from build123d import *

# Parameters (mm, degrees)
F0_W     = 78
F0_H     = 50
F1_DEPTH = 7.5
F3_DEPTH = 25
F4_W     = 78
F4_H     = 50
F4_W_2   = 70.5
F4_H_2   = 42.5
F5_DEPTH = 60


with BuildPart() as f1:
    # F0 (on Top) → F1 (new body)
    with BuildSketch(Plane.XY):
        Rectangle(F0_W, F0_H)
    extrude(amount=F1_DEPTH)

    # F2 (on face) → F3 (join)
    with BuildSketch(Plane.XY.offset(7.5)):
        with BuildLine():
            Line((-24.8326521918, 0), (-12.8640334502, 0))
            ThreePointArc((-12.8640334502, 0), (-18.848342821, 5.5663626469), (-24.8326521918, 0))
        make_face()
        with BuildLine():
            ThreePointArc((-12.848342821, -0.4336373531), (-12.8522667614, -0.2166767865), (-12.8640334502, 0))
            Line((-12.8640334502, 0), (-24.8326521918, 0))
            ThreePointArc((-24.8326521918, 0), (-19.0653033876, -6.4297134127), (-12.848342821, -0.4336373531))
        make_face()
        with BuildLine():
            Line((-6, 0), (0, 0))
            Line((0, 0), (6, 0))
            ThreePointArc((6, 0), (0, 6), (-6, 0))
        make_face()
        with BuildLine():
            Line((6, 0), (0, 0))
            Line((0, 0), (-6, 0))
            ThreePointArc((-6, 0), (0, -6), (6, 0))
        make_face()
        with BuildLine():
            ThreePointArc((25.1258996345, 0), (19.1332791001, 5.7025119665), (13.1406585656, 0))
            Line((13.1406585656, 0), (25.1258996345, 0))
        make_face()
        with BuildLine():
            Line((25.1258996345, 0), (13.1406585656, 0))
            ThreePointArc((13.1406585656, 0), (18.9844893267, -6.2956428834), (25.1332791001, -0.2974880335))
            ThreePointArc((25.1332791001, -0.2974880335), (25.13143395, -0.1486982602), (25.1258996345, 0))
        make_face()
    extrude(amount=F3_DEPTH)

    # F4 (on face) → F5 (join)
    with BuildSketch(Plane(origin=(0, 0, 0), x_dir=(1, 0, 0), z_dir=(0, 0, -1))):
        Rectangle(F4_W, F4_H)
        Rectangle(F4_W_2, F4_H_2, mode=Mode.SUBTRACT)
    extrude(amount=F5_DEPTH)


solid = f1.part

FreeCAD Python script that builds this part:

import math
import FreeCAD as App
import Part
import Sketcher
from FreeCAD import Vector

doc = App.newDocument("Part")
body = doc.addObject("PartDesign::Body", "Body")

# Sketch on XY plane
sketch1 = body.newObject("Sketcher::SketchObject", "Sketch")
sketch1.AttachmentSupport = (doc.getObject("XY_Plane"), [""])
sketch1.MapMode = "FlatFace"
sketch1.addGeometry(Part.LineSegment(Vector(-39, 25, 0), Vector(-39, -25, 0)), False)
sketch1.addGeometry(Part.LineSegment(Vector(-39, -25, 0), Vector(39, -25, 0)), False)
sketch1.addGeometry(Part.LineSegment(Vector(39, -25, 0), Vector(39, 25, 0)), False)
sketch1.addGeometry(Part.LineSegment(Vector(39, 25, 0), Vector(-39, 25, 0)), False)
sketch1.addConstraint(Sketcher.Constraint("Coincident", 0, 2, 1, 1))
sketch1.addConstraint(Sketcher.Constraint("Coincident", 1, 2, 2, 1))
sketch1.addConstraint(Sketcher.Constraint("Coincident", 2, 2, 3, 1))
sketch1.addConstraint(Sketcher.Constraint("Coincident", 3, 2, 0, 1))
sketch1.addConstraint(Sketcher.Constraint("Vertical", 0))
sketch1.addConstraint(Sketcher.Constraint("Horizontal", 1))
sketch1.addConstraint(Sketcher.Constraint("Vertical", 2))
sketch1.addConstraint(Sketcher.Constraint("Horizontal", 3))
sketch1.addConstraint(Sketcher.Constraint("Symmetric", 0, 2, 2, 2, -1, 1))
sketch1.addConstraint(Sketcher.Constraint("DistanceX", 1, 1, 1, 2, 78.0))
sketch1.addConstraint(Sketcher.Constraint("DistanceY", 0, 2, 0, 1, 50.0))
pad1 = body.newObject("PartDesign::Pad", "Pad")
pad1.Profile = sketch1
pad1.Length = 7.5

# Sketch on XY plane
sketch2 = body.newObject("Sketcher::SketchObject", "Sketch001")
sketch2.AttachmentSupport = (doc.getObject("XY_Plane"), [""])
sketch2.MapMode = "FlatFace"
sketch2.AttachmentOffset = App.Placement(Vector(0, 0, 7.5), App.Rotation())
sketch2.addGeometry(Part.ArcOfCircle(Part.Circle(Vector(-18.848343, -0.433637, 0), Vector(0, 0, 1), 6), math.radians(4.144545), math.radians(175.855455)), False)
sketch2.addGeometry(Part.ArcOfCircle(Part.Circle(Vector(-18.848343, -0.433637, 0), Vector(0, 0, 1), 6), math.radians(175.855455), math.radians(360)), False)
sketch2.addGeometry(Part.ArcOfCircle(Part.Circle(Vector(-18.848343, -0.433637, 0), Vector(0, 0, 1), 6), math.radians(0), math.radians(4.144545)), False)
sketch2.addGeometry(Part.Circle(Vector(0, 0, 0), Vector(0, 0, 1), 6), False)
sketch2.addGeometry(Part.ArcOfCircle(Part.Circle(Vector(19.133279, -0.297488, 0), Vector(0, 0, 1), 6), math.radians(2.841967), math.radians(177.158033)), False)
sketch2.addGeometry(Part.ArcOfCircle(Part.Circle(Vector(19.133279, -0.297488, 0), Vector(0, 0, 1), 6), math.radians(177.158033), math.radians(360)), False)
sketch2.addGeometry(Part.ArcOfCircle(Part.Circle(Vector(19.133279, -0.297488, 0), Vector(0, 0, 1), 6), math.radians(0), math.radians(2.841967)), False)
sketch2.addConstraint(Sketcher.Constraint("Tangent", 0, 2, 1, 1))
sketch2.addConstraint(Sketcher.Constraint("Tangent", 1, 2, 2, 1))
sketch2.addConstraint(Sketcher.Constraint("Tangent", 2, 2, 0, 1))
sketch2.addConstraint(Sketcher.Constraint("Tangent", 4, 2, 5, 1))
sketch2.addConstraint(Sketcher.Constraint("Tangent", 5, 2, 6, 1))
sketch2.addConstraint(Sketcher.Constraint("Tangent", 6, 2, 4, 1))
sketch2.addConstraint(Sketcher.Constraint("Coincident", 3, 3, -1, 1))
sketch2.addConstraint(Sketcher.Constraint("Equal", 2, 3))
sketch2.addConstraint(Sketcher.Constraint("Equal", 3, 4))
sketch2.addConstraint(Sketcher.Constraint("PointOnObject", 0, 2, -1))
sketch2.addConstraint(Sketcher.Constraint("PointOnObject", 2, 2, -1))
sketch2.addConstraint(Sketcher.Constraint("PointOnObject", 4, 2, -1))
sketch2.addConstraint(Sketcher.Constraint("PointOnObject", 6, 2, -1))
sketch2.addConstraint(Sketcher.Constraint("Horizontal", 2, 3, 1, 2))
sketch2.addConstraint(Sketcher.Constraint("Horizontal", 6, 3, 5, 2))
sketch2.addConstraint(Sketcher.Constraint("Diameter", 3, 12.0))
sketch2.addConstraint(Sketcher.Constraint("DistanceX", 1, 2, 4, 2, 25.989001))
sketch2.addConstraint(Sketcher.Constraint("DistanceX", -1, 1, 6, 2, 25.1259))
sketch2.addConstraint(Sketcher.Constraint("DistanceX", -1, 1, 4, 3, 19.133279))
sketch2.addConstraint(Sketcher.Constraint("DistanceY", 2, 3, 4, 3, 0.136149))
pad2 = body.newObject("PartDesign::Pad", "Pad001")
pad2.Profile = sketch2
pad2.Length = 25

# Sketch on XY plane
sketch3 = body.newObject("Sketcher::SketchObject", "Sketch002")
sketch3.AttachmentSupport = (doc.getObject("XY_Plane"), [""])
sketch3.MapMode = "FlatFace"
sketch3.addGeometry(Part.LineSegment(Vector(-39, -25, 0), Vector(-39, 25, 0)), False)
sketch3.addGeometry(Part.LineSegment(Vector(-39, 25, 0), Vector(39, 25, 0)), False)
sketch3.addGeometry(Part.LineSegment(Vector(39, 25, 0), Vector(39, -25, 0)), False)
sketch3.addGeometry(Part.LineSegment(Vector(39, -25, 0), Vector(-39, -25, 0)), False)
sketch3.addGeometry(Part.LineSegment(Vector(35.25, 21.25, 0), Vector(-35.25, 21.25, 0)), False)
sketch3.addGeometry(Part.LineSegment(Vector(-35.25, 21.25, 0), Vector(-35.25, -21.25, 0)), False)
sketch3.addGeometry(Part.LineSegment(Vector(-35.25, -21.25, 0), Vector(35.25, -21.25, 0)), False)
sketch3.addGeometry(Part.LineSegment(Vector(35.25, -21.25, 0), Vector(35.25, 21.25, 0)), False)
sketch3.addConstraint(Sketcher.Constraint("Coincident", 0, 2, 1, 1))
sketch3.addConstraint(Sketcher.Constraint("Coincident", 1, 2, 2, 1))
sketch3.addConstraint(Sketcher.Constraint("Coincident", 2, 2, 3, 1))
sketch3.addConstraint(Sketcher.Constraint("Coincident", 3, 2, 0, 1))
sketch3.addConstraint(Sketcher.Constraint("Coincident", 4, 2, 5, 1))
sketch3.addConstraint(Sketcher.Constraint("Coincident", 5, 2, 6, 1))
sketch3.addConstraint(Sketcher.Constraint("Coincident", 6, 2, 7, 1))
sketch3.addConstraint(Sketcher.Constraint("Coincident", 7, 2, 4, 1))
sketch3.addConstraint(Sketcher.Constraint("Vertical", 0))
sketch3.addConstraint(Sketcher.Constraint("Horizontal", 1))
sketch3.addConstraint(Sketcher.Constraint("Vertical", 2))
sketch3.addConstraint(Sketcher.Constraint("Horizontal", 3))
sketch3.addConstraint(Sketcher.Constraint("Horizontal", 4))
sketch3.addConstraint(Sketcher.Constraint("Vertical", 5))
sketch3.addConstraint(Sketcher.Constraint("Horizontal", 6))
sketch3.addConstraint(Sketcher.Constraint("Vertical", 7))
sketch3.addConstraint(Sketcher.Constraint("Symmetric", 0, 2, 2, 2, -1, 1))
sketch3.addConstraint(Sketcher.Constraint("Symmetric", 4, 2, 6, 2, -1, 1))
sketch3.addConstraint(Sketcher.Constraint("DistanceX", 1, 1, 1, 2, 78.0))
sketch3.addConstraint(Sketcher.Constraint("DistanceY", 0, 1, 0, 2, 50.0))
sketch3.addConstraint(Sketcher.Constraint("DistanceX", 4, 2, 4, 1, 70.5))
sketch3.addConstraint(Sketcher.Constraint("DistanceY", 5, 2, 5, 1, 42.5))
pad3 = body.newObject("PartDesign::Pad", "Pad002")
pad3.Profile = sketch3
pad3.Length = 60
pad3.Reversed = True

doc.recompute()
